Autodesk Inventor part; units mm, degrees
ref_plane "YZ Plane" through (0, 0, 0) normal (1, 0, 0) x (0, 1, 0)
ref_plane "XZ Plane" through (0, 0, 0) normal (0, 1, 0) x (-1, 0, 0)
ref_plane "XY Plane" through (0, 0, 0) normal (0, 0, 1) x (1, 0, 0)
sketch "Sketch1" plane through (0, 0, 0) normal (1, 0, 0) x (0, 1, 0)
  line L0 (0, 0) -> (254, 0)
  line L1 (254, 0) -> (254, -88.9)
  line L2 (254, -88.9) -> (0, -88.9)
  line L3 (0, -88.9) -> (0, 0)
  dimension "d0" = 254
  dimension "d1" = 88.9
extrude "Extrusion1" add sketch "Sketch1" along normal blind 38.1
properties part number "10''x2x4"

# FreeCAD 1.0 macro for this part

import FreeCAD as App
import Part
import Sketcher
Q = App.Units.Quantity

doc = App.newDocument("Part")
body = doc.addObject("PartDesign::Body", "Body")

# Sketch on YZ plane
sketch1 = body.newObject("Sketcher::SketchObject", "Sketch")
sketch1.AttachmentSupport = (doc.getObject("YZ_Plane"), [""])
sketch1.MapMode = "FlatFace"
sketch1.addGeometry(Part.LineSegment(App.Vector(254, 0, 0), App.Vector(0, 0, 0)), False)
sketch1.addGeometry(Part.LineSegment(App.Vector(0, 0, 0), App.Vector(0, -89, 0)), False)
sketch1.addGeometry(Part.LineSegment(App.Vector(0, -89, 0), App.Vector(254, -89, 0)), False)
sketch1.addGeometry(Part.LineSegment(App.Vector(254, -89, 0), App.Vector(254, 0, 0)), False)
sketch1.addConstraint(Sketcher.Constraint("Coincident", 0, 2, 1, 1))
sketch1.addConstraint(Sketcher.Constraint("Coincident", 1, 2, 2, 1))
sketch1.addConstraint(Sketcher.Constraint("Coincident", 2, 2, 3, 1))
sketch1.addConstraint(Sketcher.Constraint("Coincident", 3, 2, 0, 1))
sketch1.addConstraint(Sketcher.Constraint("Horizontal", 0))
sketch1.addConstraint(Sketcher.Constraint("Vertical", 1))
sketch1.addConstraint(Sketcher.Constraint("Horizontal", 2))
sketch1.addConstraint(Sketcher.Constraint("Vertical", 3))
sketch1.addConstraint(Sketcher.Constraint("Coincident", 0, 2, -1, 1))
sketch1.addConstraint(Sketcher.Constraint("DistanceX", 0, 2, 0, 1, Q("10 in")))
sketch1.addConstraint(Sketcher.Constraint("DistanceY", 1, 2, 1, 1, Q("3.5 in")))
pad1 = body.newObject("PartDesign::Pad", "Pad")
pad1.Profile = sketch1
pad1.Length = Q("1.5 in")

doc.recompute()
